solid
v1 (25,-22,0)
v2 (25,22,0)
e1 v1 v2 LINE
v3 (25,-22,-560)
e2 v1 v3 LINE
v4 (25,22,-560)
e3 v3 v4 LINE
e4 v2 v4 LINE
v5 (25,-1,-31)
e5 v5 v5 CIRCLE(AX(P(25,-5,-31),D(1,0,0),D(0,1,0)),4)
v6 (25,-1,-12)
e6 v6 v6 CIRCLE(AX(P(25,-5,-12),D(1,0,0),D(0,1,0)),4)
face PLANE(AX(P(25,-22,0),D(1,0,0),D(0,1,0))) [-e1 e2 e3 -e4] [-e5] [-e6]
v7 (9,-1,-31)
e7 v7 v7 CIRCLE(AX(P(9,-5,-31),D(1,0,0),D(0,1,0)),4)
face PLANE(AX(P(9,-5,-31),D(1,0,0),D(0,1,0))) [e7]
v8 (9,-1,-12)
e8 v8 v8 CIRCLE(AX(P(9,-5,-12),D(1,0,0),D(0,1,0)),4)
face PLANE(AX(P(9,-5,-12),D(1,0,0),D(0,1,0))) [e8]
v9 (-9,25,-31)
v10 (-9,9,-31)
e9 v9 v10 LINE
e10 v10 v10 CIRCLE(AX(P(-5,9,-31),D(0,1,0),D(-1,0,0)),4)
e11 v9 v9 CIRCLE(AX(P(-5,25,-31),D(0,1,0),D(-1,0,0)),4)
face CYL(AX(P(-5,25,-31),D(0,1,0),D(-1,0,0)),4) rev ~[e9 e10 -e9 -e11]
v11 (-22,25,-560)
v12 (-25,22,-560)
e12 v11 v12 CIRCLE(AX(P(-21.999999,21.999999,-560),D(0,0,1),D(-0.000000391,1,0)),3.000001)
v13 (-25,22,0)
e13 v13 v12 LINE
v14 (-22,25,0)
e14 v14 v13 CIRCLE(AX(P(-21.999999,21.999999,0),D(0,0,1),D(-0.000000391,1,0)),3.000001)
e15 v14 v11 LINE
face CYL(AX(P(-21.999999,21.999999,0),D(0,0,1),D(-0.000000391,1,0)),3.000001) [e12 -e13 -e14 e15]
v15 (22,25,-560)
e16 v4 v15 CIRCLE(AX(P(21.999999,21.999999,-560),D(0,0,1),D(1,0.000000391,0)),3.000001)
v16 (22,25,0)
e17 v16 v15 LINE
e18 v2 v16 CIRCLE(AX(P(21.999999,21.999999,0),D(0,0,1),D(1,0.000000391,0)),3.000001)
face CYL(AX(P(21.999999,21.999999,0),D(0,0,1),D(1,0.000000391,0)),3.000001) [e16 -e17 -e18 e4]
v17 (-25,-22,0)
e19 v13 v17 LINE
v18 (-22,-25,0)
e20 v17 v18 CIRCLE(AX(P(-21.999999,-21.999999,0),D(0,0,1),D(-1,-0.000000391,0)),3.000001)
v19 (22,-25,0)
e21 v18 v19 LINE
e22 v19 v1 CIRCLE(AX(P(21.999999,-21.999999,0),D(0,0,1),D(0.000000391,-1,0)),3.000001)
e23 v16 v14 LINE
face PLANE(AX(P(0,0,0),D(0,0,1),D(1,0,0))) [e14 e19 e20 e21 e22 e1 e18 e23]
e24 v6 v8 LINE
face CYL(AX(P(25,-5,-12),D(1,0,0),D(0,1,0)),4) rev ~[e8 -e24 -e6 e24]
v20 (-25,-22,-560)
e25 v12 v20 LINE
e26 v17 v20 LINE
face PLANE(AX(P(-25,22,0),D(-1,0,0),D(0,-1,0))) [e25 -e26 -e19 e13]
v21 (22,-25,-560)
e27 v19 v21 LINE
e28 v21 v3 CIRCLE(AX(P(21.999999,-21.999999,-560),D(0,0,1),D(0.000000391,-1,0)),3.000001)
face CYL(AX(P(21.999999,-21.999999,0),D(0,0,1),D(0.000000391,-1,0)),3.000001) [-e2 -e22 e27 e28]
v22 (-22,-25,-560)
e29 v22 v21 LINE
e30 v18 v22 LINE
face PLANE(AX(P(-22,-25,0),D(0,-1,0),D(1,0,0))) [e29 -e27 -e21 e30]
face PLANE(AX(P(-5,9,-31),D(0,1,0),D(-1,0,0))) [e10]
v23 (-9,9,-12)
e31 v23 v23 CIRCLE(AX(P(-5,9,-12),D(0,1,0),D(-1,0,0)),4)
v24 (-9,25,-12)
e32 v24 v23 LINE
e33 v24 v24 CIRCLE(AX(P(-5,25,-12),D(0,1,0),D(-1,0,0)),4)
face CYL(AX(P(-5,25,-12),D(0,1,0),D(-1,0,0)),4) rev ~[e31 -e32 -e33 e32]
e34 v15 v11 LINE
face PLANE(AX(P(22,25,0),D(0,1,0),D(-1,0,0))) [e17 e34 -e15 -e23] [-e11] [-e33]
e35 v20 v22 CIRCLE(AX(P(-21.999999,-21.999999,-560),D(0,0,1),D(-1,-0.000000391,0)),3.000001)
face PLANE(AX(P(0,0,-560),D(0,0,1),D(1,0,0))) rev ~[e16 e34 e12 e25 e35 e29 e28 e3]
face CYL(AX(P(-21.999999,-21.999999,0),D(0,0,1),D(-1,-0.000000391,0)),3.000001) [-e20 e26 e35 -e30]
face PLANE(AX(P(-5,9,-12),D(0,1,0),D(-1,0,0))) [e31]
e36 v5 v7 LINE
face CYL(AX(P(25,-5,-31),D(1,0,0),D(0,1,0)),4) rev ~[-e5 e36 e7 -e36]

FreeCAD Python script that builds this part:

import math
import FreeCAD as App
import Part
import Sketcher
from FreeCAD import Vector

doc = App.newDocument("Part")
params = doc.addObject("Spreadsheet::Sheet", "Params")
for row, (alias, value) in enumerate([
    ("sketch1_radius", "3.000001 mm"),
    ("sketch1_width", "44 mm"),
    ("pad1_length", "560 mm"),
    ("sketch2_diameter", "8 mm"),
    ("pocket1_length", "16 mm"),
    ("sketch3_diameter", "8 mm"),
    ("pocket2_length", "16 mm"),
], start=1):
    params.set(f"A{row}", alias)
    params.set(f"B{row}", "=" + value)
    params.setAlias(f"B{row}", alias)

body = doc.addObject("PartDesign::Body", "Body")

sketch1 = body.newObject("Sketcher::SketchObject", "Sketch")
sketch1.AttachmentSupport = (doc.getObject("XY_Plane"), [""])
sketch1.MapMode = "FlatFace"
sketch1.addGeometry([
    Part.ArcOfCircle(Part.Circle(Vector(21.999999, 21.999999, 0), Vector(0, 0, 1), 3.000001), math.radians(0.000022), math.radians(89.999978)),
    Part.LineSegment(Vector(22, 25, 0), Vector(-22, 25, 0)),
    Part.ArcOfCircle(Part.Circle(Vector(-21.999999, 21.999999, 0), Vector(0, 0, 1), 3.000001), math.radians(90.000022), math.radians(179.999978)),
    Part.LineSegment(Vector(-25, 22, 0), Vector(-25, -22, 0)),
    Part.ArcOfCircle(Part.Circle(Vector(-21.999999, -21.999999, 0), Vector(0, 0, 1), 3.000001), math.radians(-179.999978), math.radians(-90.000022)),
    Part.LineSegment(Vector(-22, -25, 0), Vector(22, -25, 0)),
    Part.ArcOfCircle(Part.Circle(Vector(21.999999, -21.999999, 0), Vector(0, 0, 1), 3.000001), math.radians(-89.999978), math.radians(-0.000022)),
    Part.LineSegment(Vector(25, -22, 0), Vector(25, 22, 0)),
], False)
sketch1.addConstraint([
    Sketcher.Constraint("Tangent", 0, 2, 1, 1),
    Sketcher.Constraint("Tangent", 1, 2, 2, 1),
    Sketcher.Constraint("Tangent", 2, 2, 3, 1),
    Sketcher.Constraint("Tangent", 3, 2, 4, 1),
    Sketcher.Constraint("Tangent", 4, 2, 5, 1),
    Sketcher.Constraint("Tangent", 5, 2, 6, 1),
    Sketcher.Constraint("Tangent", 6, 2, 7, 1),
    Sketcher.Constraint("Tangent", 7, 2, 0, 1),
    Sketcher.Constraint("Horizontal", 1),
    Sketcher.Constraint("Vertical", 3),
    Sketcher.Constraint("Horizontal", 5),
    Sketcher.Constraint("Vertical", 7),
    Sketcher.Constraint("Equal", 0, 2),
    Sketcher.Constraint("Equal", 2, 4),
    Sketcher.Constraint("Equal", 4, 6),
    Sketcher.Constraint("Symmetric", 0, 3, 4, 3, -1, 1),
    Sketcher.Constraint("Equal", 5, 3),
    Sketcher.Constraint("Radius", 0, 3.000001),
    Sketcher.Constraint("DistanceX", 1, 2, 1, 1, 44.0),
])
sketch1.setExpression("Constraints[17]", "Params.sketch1_radius")
sketch1.setExpression("Constraints[18]", "Params.sketch1_width")
pad1 = body.newObject("PartDesign::Pad", "Pad")
pad1.Profile = sketch1
pad1.setExpression("Length", "Params.pad1_length")
pad1.Reversed = True

sketch2 = body.newObject("Sketcher::SketchObject", "Sketch001")
sketch2.AttachmentSupport = (doc.getObject("YZ_Plane"), [""])
sketch2.MapMode = "FlatFace"
sketch2.AttachmentOffset = App.Placement(Vector(0, 0, 25), App.Rotation())
sketch2.addGeometry([
    Part.Circle(Vector(-5, -12, 0), Vector(0, 0, 1), 4),
    Part.Circle(Vector(-5, -31, 0), Vector(0, 0, 1), 4),
], False)
sketch2.addConstraint([
    Sketcher.Constraint("Equal", 0, 1),
    Sketcher.Constraint("Vertical", 0, 3, 1, 3),
    Sketcher.Constraint("Diameter", 0, 8.0),
    Sketcher.Constraint("DistanceX", 0, 3, -1, 1, 5.0),
    Sketcher.Constraint("DistanceY", 0, 3, -1, 1, 12.0),
    Sketcher.Constraint("DistanceY", 1, 3, -1, 1, 31.0),
])
sketch2.setExpression("Constraints[2]", "Params.sketch2_diameter")
pocket1 = body.newObject("PartDesign::Pocket", "Pocket")
pocket1.Profile = sketch2
pocket1.setExpression("Length", "Params.pocket1_length")

sketch3 = body.newObject("Sketcher::SketchObject", "Sketch002")
sketch3.AttachmentSupport = (doc.getObject("XZ_Plane"), [""])
sketch3.MapMode = "FlatFace"
sketch3.AttachmentOffset = App.Placement(Vector(0, 0, -25), App.Rotation())
sketch3.addGeometry([
    Part.Circle(Vector(-5, -12, 0), Vector(0, 0, 1), 4),
    Part.Circle(Vector(-5, -31, 0), Vector(0, 0, 1), 4),
], False)
sketch3.addConstraint([
    Sketcher.Constraint("Equal", 0, 1),
    Sketcher.Constraint("Vertical", 0, 3, 1, 3),
    Sketcher.Constraint("Diameter", 0, 8.0),
    Sketcher.Constraint("DistanceX", 0, 3, -1, 1, 5.0),
    Sketcher.Constraint("DistanceY", 0, 3, -1, 1, 12.0),
    Sketcher.Constraint("DistanceY", 1, 3, -1, 1, 31.0),
])
sketch3.setExpression("Constraints[2]", "Params.sketch3_diameter")
pocket2 = body.newObject("PartDesign::Pocket", "Pocket001")
pocket2.Profile = sketch3
pocket2.setExpression("Length", "Params.pocket2_length")
pocket2.Reversed = True

doc.recompute()
